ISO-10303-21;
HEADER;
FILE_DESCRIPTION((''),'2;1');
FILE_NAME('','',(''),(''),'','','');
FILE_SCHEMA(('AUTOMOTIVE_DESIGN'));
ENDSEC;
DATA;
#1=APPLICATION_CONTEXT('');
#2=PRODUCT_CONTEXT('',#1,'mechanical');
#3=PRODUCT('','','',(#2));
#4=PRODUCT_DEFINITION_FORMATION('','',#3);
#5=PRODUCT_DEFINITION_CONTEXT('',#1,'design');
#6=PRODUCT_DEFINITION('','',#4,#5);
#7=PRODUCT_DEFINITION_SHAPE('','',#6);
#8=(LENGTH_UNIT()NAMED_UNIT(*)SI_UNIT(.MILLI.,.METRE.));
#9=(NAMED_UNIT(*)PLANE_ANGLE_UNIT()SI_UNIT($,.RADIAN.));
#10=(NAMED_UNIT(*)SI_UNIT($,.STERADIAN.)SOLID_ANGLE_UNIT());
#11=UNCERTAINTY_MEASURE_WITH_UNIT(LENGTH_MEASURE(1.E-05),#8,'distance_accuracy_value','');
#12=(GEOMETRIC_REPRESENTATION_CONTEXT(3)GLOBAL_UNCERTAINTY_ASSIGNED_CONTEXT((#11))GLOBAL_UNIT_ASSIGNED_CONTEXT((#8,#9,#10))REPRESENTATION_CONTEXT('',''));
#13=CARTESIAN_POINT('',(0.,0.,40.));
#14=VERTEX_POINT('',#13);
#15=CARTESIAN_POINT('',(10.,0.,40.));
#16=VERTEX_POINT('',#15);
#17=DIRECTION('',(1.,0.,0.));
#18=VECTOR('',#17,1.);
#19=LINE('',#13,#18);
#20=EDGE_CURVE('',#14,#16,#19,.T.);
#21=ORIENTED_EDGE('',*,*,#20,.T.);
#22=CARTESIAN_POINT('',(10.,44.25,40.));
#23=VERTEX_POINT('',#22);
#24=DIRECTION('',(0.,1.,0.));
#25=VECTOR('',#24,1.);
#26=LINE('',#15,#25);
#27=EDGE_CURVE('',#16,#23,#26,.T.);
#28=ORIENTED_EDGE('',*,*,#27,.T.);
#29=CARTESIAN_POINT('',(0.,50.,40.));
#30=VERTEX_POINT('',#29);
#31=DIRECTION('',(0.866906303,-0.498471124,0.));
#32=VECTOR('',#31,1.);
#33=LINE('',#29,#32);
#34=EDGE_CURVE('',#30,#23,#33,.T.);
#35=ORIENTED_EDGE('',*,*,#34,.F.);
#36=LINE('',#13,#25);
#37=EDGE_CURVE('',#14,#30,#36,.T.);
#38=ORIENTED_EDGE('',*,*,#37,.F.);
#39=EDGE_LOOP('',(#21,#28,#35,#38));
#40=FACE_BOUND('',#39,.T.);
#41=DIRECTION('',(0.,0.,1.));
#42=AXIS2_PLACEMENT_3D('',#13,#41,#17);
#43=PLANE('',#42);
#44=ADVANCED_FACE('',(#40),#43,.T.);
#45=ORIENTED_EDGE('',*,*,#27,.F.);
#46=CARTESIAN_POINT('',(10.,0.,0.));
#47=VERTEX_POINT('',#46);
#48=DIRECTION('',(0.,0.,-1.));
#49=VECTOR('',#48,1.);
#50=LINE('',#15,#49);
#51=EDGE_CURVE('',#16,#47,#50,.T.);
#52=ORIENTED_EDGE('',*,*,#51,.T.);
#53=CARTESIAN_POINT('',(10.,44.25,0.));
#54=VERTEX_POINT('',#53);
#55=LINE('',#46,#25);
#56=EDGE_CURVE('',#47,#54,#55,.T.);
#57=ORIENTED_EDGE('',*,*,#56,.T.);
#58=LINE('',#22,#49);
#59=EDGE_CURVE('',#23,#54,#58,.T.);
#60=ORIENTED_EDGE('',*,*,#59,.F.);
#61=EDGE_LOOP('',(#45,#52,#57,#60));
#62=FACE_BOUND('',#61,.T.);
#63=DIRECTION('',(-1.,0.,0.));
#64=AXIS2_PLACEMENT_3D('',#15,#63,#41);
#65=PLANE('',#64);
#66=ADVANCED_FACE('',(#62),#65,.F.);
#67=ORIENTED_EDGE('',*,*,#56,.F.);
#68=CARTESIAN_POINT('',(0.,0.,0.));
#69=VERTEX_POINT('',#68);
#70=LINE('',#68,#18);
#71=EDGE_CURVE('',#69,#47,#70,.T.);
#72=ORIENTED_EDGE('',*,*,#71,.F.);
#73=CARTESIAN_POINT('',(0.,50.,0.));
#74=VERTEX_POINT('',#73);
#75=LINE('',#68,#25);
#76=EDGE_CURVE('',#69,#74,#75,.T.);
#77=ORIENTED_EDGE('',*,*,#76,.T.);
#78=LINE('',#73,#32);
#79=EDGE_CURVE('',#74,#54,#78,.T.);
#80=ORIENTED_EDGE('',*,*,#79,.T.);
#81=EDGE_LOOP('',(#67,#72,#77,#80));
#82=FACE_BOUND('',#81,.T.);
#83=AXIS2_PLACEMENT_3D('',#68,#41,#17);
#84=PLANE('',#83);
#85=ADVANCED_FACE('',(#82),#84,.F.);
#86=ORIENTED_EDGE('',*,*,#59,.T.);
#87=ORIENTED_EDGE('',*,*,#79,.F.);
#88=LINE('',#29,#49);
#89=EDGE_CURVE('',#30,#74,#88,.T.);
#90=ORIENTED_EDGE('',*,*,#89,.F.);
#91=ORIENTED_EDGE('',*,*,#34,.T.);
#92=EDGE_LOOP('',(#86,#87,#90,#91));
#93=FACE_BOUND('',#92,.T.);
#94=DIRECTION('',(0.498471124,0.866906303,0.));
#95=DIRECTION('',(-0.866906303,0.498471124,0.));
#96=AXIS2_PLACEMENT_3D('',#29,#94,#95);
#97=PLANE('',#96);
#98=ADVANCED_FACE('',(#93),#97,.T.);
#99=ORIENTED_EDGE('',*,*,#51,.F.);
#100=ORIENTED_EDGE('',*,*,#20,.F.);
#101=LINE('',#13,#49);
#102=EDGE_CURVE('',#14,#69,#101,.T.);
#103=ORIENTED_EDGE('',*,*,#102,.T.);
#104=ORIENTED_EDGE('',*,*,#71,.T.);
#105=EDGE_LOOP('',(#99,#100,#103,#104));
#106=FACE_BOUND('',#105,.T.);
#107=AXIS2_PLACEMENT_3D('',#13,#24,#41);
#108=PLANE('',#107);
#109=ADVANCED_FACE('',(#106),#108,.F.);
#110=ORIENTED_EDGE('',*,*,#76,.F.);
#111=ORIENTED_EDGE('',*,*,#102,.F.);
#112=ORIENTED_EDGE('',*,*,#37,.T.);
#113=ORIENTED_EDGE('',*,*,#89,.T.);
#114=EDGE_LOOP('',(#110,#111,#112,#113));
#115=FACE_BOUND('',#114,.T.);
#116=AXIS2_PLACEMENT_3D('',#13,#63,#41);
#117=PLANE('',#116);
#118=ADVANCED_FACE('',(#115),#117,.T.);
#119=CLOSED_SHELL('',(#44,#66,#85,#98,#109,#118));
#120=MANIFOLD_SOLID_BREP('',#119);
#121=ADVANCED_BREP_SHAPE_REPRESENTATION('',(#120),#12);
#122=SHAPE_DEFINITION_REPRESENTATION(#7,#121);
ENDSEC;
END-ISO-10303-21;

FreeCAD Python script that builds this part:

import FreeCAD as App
import Part
import Sketcher
from FreeCAD import Vector
Q = App.Units.Quantity


def add_polygon(sketch, points):
    """Adds a closed chain of lines whose ends are joined by coincident constraints."""
    first, n = sketch.GeometryCount, len(points)
    for a, b in zip(points, points[1:] + points[:1]):
        sketch.addGeometry(Part.LineSegment(App.Vector(*a, 0), App.Vector(*b, 0)), False)
    for i in range(n):
        sketch.addConstraint(Sketcher.Constraint("Coincident", first + i, 2, first + (i + 1) % n, 1))

doc = App.newDocument("Part")
body = doc.addObject("PartDesign::Body", "Body")

# Sketch on XY plane
sketch1 = body.newObject("Sketcher::SketchObject", "Sketch")
sketch1.AttachmentSupport = (doc.getObject("XY_Plane"), [""])
sketch1.MapMode = "FlatFace"
add_polygon(sketch1, [(0, 50), (0, 0), (10, 0), (10, 44.25)])  # lines 0-3
sketch1.addConstraint(Sketcher.Constraint("Vertical", 0))
sketch1.addConstraint(Sketcher.Constraint("Horizontal", 1))
sketch1.addConstraint(Sketcher.Constraint("Vertical", 2))
sketch1.addConstraint(Sketcher.Constraint("Coincident", 0, 2, -1, 1))
sketch1.addConstraint(Sketcher.Constraint("DistanceX", 1, 1, 1, 2, Q("10 mm")))
sketch1.addConstraint(Sketcher.Constraint("DistanceY", 0, 2, 0, 1, Q("50 mm")))
sketch1.addConstraint(Sketcher.Constraint("DistanceY", 2, 1, 2, 2, Q("44.25 mm")))
pad1 = body.newObject("PartDesign::Pad", "Pad")
pad1.Profile = sketch1
pad1.Length = 40

doc.recompute()
